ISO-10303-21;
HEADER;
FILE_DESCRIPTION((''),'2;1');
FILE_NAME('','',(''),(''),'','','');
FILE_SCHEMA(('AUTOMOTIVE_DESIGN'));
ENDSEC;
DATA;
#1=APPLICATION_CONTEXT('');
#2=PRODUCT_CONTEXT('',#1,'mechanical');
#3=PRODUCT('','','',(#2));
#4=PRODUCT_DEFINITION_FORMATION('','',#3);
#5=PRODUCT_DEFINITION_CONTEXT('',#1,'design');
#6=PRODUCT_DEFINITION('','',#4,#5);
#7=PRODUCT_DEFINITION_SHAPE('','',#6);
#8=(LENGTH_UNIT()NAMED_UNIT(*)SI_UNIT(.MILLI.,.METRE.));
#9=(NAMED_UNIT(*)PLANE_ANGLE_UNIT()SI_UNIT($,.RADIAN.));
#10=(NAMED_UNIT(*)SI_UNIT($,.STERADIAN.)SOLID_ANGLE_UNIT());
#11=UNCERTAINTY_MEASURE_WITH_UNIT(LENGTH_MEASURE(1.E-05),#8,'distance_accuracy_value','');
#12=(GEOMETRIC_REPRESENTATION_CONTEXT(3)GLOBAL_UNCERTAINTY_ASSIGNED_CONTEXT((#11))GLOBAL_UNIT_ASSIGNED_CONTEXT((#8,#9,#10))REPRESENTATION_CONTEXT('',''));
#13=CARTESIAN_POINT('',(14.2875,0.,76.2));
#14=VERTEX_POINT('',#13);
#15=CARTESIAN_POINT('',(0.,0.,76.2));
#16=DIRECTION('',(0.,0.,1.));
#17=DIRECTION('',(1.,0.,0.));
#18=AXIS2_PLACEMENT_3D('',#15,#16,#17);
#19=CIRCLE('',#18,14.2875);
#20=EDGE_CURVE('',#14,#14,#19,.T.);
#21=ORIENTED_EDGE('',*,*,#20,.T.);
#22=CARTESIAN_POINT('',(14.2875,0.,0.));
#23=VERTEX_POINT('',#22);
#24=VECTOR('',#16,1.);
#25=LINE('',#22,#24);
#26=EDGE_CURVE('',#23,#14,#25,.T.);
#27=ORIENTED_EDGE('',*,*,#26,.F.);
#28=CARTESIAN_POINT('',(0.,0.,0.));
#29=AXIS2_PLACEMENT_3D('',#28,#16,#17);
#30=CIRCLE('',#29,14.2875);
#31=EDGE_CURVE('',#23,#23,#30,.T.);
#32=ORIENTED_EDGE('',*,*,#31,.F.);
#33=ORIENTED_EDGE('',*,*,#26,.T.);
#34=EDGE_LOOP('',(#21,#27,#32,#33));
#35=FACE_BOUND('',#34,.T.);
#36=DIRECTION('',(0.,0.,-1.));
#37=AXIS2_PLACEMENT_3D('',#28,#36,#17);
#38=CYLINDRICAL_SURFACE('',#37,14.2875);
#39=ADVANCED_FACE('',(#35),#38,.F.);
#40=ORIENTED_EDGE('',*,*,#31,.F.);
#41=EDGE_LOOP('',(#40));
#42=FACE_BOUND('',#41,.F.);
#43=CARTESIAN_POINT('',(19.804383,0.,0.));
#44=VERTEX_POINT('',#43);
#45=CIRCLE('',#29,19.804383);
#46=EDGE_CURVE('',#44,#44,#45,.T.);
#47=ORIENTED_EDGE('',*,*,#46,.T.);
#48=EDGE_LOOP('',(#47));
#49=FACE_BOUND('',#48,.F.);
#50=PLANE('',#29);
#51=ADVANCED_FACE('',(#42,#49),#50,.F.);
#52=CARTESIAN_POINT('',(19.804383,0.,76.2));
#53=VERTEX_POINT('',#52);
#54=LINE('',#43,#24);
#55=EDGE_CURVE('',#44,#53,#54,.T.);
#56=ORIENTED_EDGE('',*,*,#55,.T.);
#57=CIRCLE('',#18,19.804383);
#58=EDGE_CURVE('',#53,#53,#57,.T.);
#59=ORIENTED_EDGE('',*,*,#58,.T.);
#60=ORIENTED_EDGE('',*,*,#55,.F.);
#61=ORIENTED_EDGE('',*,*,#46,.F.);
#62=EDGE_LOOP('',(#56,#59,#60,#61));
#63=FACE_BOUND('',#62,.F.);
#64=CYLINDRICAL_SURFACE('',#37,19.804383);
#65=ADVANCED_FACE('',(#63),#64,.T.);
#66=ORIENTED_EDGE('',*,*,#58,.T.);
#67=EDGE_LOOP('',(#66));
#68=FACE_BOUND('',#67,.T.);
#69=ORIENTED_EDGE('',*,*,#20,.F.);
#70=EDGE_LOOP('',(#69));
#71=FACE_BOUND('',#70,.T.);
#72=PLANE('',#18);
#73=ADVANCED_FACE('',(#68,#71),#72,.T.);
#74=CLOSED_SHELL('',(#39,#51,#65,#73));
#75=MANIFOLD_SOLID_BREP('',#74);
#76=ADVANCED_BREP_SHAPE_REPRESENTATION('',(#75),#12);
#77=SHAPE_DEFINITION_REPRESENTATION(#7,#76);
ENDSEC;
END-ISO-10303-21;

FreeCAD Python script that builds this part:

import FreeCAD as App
import Part
import Sketcher

V = App.Vector
Q = App.Units.Quantity

doc = App.newDocument("Part")
params = doc.addObject("Spreadsheet::Sheet", "Params")
for row, (alias, value) in enumerate([
    ("sketch1_diameter", "1.125 in"),
    ("pad1_length", "3 in"),
], start=1):
    params.set(f"A{row}", alias)
    params.set(f"B{row}", "=" + value)
    params.setAlias(f"B{row}", alias)

body = doc.addObject("PartDesign::Body", "Body")

# Sketch on XY plane
sketch1 = body.newObject("Sketcher::SketchObject", "Sketch")
sketch1.AttachmentSupport = (doc.getObject("XY_Plane"), [""])
sketch1.MapMode = "FlatFace"
sketch1.addGeometry(Part.Circle(V(0, 0, 0), V(0, 0, 1), 19.804383), False)
sketch1.addGeometry(Part.Circle(V(0, 0, 0), V(0, 0, 1), 14.2875), False)
sketch1.addConstraint(Sketcher.Constraint("Coincident", 0, 3, -1, 1))
sketch1.addConstraint(Sketcher.Constraint("Coincident", 1, 3, -1, 1))
sketch1.addConstraint(Sketcher.Constraint("Diameter", 1, Q("1.125 in")))
sketch1.addConstraint(Sketcher.Constraint("Diameter", 0, Q("39.608766 mm")))
sketch1.setExpression("Constraints[2]", "Params.sketch1_diameter")
pad1 = body.newObject("PartDesign::Pad", "Pad")
pad1.Profile = sketch1
pad1.setExpression("Length", "Params.pad1_length")

doc.recompute()
